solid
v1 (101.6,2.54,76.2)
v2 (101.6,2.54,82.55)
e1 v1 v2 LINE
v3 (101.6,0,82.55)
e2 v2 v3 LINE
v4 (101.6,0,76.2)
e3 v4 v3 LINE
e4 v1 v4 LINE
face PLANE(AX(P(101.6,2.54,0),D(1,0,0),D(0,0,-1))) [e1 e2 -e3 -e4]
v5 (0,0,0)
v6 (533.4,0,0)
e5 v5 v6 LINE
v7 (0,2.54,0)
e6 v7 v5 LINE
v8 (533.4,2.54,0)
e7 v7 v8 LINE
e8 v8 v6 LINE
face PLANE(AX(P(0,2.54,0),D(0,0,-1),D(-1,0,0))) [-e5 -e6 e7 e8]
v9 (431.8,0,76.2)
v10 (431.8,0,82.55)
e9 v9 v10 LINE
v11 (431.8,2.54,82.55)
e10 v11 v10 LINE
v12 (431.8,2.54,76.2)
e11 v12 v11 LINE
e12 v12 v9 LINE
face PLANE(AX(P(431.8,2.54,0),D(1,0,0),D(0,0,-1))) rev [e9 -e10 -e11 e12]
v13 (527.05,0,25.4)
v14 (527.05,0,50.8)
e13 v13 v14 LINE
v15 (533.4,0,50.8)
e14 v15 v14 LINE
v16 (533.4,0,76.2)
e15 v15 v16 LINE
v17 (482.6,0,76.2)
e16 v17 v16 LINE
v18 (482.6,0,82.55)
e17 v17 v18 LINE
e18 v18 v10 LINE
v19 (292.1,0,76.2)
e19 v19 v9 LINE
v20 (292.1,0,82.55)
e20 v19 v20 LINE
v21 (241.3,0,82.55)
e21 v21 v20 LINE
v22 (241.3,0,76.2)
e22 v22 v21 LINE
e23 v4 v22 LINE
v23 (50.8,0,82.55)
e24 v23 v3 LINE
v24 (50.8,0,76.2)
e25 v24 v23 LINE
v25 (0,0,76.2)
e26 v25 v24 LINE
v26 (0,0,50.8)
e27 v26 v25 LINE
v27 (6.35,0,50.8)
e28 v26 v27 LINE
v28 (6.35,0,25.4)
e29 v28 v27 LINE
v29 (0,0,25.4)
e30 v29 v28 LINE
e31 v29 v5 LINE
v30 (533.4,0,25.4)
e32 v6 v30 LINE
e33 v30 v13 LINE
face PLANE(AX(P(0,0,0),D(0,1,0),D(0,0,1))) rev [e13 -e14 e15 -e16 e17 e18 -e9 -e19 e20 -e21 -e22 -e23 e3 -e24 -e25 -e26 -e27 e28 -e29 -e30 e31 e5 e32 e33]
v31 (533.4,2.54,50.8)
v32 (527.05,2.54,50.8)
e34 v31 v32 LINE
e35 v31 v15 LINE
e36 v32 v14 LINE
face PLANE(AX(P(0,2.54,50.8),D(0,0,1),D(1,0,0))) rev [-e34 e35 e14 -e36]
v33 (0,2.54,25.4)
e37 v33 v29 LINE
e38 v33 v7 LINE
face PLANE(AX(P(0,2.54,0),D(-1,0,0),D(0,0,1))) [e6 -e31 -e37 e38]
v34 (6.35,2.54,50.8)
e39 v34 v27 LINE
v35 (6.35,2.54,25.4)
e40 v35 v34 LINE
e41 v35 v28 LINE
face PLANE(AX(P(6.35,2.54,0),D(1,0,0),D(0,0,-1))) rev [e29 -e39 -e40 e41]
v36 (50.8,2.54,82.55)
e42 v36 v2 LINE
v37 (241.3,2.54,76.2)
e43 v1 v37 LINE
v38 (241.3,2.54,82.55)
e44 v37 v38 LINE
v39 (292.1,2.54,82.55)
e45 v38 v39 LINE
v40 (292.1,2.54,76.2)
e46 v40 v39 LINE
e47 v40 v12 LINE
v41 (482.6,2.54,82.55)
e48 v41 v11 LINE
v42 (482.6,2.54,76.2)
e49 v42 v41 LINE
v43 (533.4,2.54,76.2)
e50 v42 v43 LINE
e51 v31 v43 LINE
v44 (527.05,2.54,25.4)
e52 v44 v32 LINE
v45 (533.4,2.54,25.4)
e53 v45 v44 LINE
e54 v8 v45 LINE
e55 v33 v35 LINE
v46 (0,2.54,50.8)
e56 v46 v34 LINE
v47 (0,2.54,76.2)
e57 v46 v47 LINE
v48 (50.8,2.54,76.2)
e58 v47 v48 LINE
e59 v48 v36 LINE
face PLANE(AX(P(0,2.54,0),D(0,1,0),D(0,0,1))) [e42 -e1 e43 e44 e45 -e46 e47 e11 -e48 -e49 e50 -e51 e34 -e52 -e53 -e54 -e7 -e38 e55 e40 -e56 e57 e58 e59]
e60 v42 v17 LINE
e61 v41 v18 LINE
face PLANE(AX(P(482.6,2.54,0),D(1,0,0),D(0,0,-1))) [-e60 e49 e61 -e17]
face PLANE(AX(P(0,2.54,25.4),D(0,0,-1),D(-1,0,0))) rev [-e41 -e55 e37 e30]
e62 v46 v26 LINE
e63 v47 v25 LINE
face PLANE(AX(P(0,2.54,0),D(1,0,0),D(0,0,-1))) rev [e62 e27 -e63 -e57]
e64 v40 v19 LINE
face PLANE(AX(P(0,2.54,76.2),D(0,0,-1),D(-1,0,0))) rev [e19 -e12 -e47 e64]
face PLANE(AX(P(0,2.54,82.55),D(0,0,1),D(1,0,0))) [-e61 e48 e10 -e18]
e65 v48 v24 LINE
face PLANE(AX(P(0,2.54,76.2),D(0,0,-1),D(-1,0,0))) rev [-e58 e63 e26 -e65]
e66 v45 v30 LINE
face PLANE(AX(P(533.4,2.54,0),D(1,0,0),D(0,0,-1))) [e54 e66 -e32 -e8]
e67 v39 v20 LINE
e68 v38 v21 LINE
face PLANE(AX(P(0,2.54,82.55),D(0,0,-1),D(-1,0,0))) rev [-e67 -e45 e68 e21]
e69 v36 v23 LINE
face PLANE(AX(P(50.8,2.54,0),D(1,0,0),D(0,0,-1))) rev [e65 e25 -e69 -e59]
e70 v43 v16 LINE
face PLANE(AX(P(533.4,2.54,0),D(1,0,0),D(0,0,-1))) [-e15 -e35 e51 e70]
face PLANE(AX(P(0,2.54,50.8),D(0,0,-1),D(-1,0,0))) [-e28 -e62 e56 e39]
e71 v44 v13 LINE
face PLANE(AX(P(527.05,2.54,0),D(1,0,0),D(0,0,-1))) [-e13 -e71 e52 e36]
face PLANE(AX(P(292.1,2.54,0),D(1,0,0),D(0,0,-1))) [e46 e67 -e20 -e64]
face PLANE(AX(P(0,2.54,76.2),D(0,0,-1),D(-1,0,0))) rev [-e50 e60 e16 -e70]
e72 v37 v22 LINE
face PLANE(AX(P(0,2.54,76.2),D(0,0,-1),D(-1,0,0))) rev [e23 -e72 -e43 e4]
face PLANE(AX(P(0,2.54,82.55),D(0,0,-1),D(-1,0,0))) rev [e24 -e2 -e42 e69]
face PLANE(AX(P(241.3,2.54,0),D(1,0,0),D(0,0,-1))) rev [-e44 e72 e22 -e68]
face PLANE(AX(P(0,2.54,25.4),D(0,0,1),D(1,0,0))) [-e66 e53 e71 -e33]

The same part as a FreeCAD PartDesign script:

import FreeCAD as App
import Part
import Sketcher
Q = App.Units.Quantity


def add_polygon(sketch, points):
    """Adds a closed chain of lines whose ends are joined by coincident constraints."""
    first, n = sketch.GeometryCount, len(points)
    for a, b in zip(points, points[1:] + points[:1]):
        sketch.addGeometry(Part.LineSegment(App.Vector(*a, 0), App.Vector(*b, 0)), False)
    for i in range(n):
        sketch.addConstraint(Sketcher.Constraint("Coincident", first + i, 2, first + (i + 1) % n, 1))

doc = App.newDocument("Part")
body = doc.addObject("PartDesign::Body", "Body")

# Sketch on XZ plane
sketch1 = body.newObject("Sketcher::SketchObject", "Sketch")
sketch1.AttachmentSupport = (doc.getObject("XZ_Plane"), [""])
sketch1.MapMode = "FlatFace"
add_polygon(sketch1, [(292, 83), (292, 76), (432, 76), (432, 83), (483, 83), (483, 76), (533, 76), (533, 51), (527, 51), (527, 25), (533, 25), (533, 0), (0, 0), (0, 25), (6, 25), (6, 51), (0, 51), (0, 76), (51, 76), (51, 83), (102, 83), (102, 76), (241, 76), (241, 83)])  # lines 0-23
sketch1.addConstraint([
    Sketcher.Constraint("Vertical", 0),
    Sketcher.Constraint("Horizontal", 1),
    Sketcher.Constraint("Vertical", 2),
    Sketcher.Constraint("Horizontal", 3),
    Sketcher.Constraint("Vertical", 4),
    Sketcher.Constraint("Horizontal", 5),
    Sketcher.Constraint("Vertical", 6),
    Sketcher.Constraint("Horizontal", 7),
    Sketcher.Constraint("Vertical", 8),
    Sketcher.Constraint("Horizontal", 9),
    Sketcher.Constraint("Vertical", 10),
    Sketcher.Constraint("Horizontal", 11),
    Sketcher.Constraint("Vertical", 12),
    Sketcher.Constraint("Horizontal", 13),
    Sketcher.Constraint("Vertical", 14),
    Sketcher.Constraint("Horizontal", 15),
    Sketcher.Constraint("Vertical", 16),
    Sketcher.Constraint("Horizontal", 17),
    Sketcher.Constraint("Vertical", 18),
    Sketcher.Constraint("Horizontal", 19),
    Sketcher.Constraint("Vertical", 20),
    Sketcher.Constraint("Horizontal", 21),
    Sketcher.Constraint("Vertical", 22),
    Sketcher.Constraint("Horizontal", 23),
    Sketcher.Constraint("Coincident", 11, 2, -1, 1),
    Sketcher.Constraint("PointOnObject", 15, 2, -2),
    Sketcher.Constraint("Horizontal", 1, 2, 4, 2),
    Sketcher.Constraint("Horizontal", 9, 2, 12, 2),
    Sketcher.Constraint("Horizontal", 7, 2, 14, 2),
    Sketcher.Constraint("Horizontal", 5, 2, 16, 2),
    Sketcher.Constraint("Horizontal", 3, 2, 18, 2),
    Sketcher.Constraint("Horizontal", 17, 2, 20, 2),
    Sketcher.Constraint("Horizontal", 19, 2, 22, 2),
    Sketcher.Constraint("Vertical", 6, 2, 9, 2),
    Sketcher.Constraint("Equal", 3, 5),
    Sketcher.Constraint("Equal", 9, 13),
    Sketcher.Constraint("Equal", 5, 17),
    Sketcher.Constraint("Equal", 17, 19),
    Sketcher.Constraint("Equal", 1, 21),
    Sketcher.Constraint("Equal", 19, 23),
    Sketcher.Constraint("Equal", 15, 0),
    Sketcher.Constraint("Equal", 6, 8),
    Sketcher.Constraint("Equal", 8, 10),
    Sketcher.Constraint("DistanceX", 3, 1, 3, 2, Q("2 in")),
    Sketcher.Constraint("DistanceX", 11, 2, 11, 1, Q("21 in")),
    Sketcher.Constraint("DistanceY", 6, 2, 6, 1, Q("1 in")),
    Sketcher.Constraint("DistanceX", 7, 2, 7, 1, Q("0.25 in")),
])
pad1 = body.newObject("PartDesign::Pad", "Pad")
pad1.Profile = sketch1
pad1.Length = Q("0.1 in")
pad1.Reversed = True

doc.recompute()
